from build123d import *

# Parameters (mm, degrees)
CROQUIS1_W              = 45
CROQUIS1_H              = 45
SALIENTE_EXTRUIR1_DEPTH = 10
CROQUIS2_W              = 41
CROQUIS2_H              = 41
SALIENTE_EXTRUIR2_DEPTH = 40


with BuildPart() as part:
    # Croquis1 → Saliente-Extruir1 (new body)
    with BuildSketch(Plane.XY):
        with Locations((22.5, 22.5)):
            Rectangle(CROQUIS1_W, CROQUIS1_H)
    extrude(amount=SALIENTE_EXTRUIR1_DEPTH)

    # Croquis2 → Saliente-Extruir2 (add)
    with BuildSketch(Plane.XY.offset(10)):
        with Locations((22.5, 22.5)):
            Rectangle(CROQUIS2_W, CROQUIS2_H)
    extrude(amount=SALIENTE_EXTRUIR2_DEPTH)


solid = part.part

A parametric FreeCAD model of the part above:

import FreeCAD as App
import Part
import Sketcher
from FreeCAD import Vector
Q = App.Units.Quantity


def add_polygon(sketch, points):
    """Adds a closed chain of lines whose ends are joined by coincident constraints."""
    first, n = sketch.GeometryCount, len(points)
    for a, b in zip(points, points[1:] + points[:1]):
        sketch.addGeometry(Part.LineSegment(App.Vector(*a, 0), App.Vector(*b, 0)), False)
    for i in range(n):
        sketch.addConstraint(Sketcher.Constraint("Coincident", first + i, 2, first + (i + 1) % n, 1))

doc = App.newDocument("Part")
params = doc.addObject("Spreadsheet::Sheet", "Params")
for row, (alias, value) in enumerate([
    ("sketch1_width", "45 mm"),
    ("pad1_length", "10 mm"),
    ("sketch2_width", "41 mm"),
    ("pad2_length", "40 mm"),
], start=1):
    params.set(f"A{row}", alias)
    params.set(f"B{row}", "=" + value)
    params.setAlias(f"B{row}", alias)

body = doc.addObject("PartDesign::Body", "Body")

# Sketch on XY plane
sketch1 = body.newObject("Sketcher::SketchObject", "Sketch")
sketch1.AttachmentSupport = (doc.getObject("XY_Plane"), [""])
sketch1.MapMode = "FlatFace"
add_polygon(sketch1, [(0, 45), (0, 0), (45, 0), (45, 45)])  # lines 0-3
sketch1.addConstraint([
    Sketcher.Constraint("Vertical", 0),
    Sketcher.Constraint("Horizontal", 1),
    Sketcher.Constraint("Vertical", 2),
    Sketcher.Constraint("Horizontal", 3),
    Sketcher.Constraint("Coincident", 0, 2, -1, 1),
    Sketcher.Constraint("Equal", 3, 0),
    Sketcher.Constraint("DistanceX", 1, 1, 1, 2, Q("45 mm")),
])
sketch1.setExpression("Constraints[10]", "Params.sketch1_width")
pad1 = body.newObject("PartDesign::Pad", "Pad")
pad1.Profile = sketch1
pad1.setExpression("Length", "Params.pad1_length")

# Sketch on XY plane
sketch2 = body.newObject("Sketcher::SketchObject", "Sketch001")
sketch2.AttachmentSupport = (doc.getObject("XY_Plane"), [""])
sketch2.MapMode = "FlatFace"
sketch2.AttachmentOffset = App.Placement(Vector(0, 0, 10), App.Rotation())
add_polygon(sketch2, [(2, 43), (2, 2), (43, 2), (43, 43)])  # lines 0-3
sketch2.addConstraint([
    Sketcher.Constraint("Vertical", 0),
    Sketcher.Constraint("Horizontal", 1),
    Sketcher.Constraint("Vertical", 2),
    Sketcher.Constraint("Horizontal", 3),
    Sketcher.Constraint("Equal", 3, 0),
    Sketcher.Constraint("DistanceX", 1, 1, 1, 2, Q("41 mm")),
    Sketcher.Constraint("DistanceX", -1, 1, 0, 2, Q("2 mm")),
    Sketcher.Constraint("DistanceY", -1, 1, 0, 2, Q("2 mm")),
])
sketch2.setExpression("Constraints[9]", "Params.sketch2_width")
pad2 = body.newObject("PartDesign::Pad", "Pad001")
pad2.Profile = sketch2
pad2.setExpression("Length", "Params.pad2_length")

doc.recompute()
